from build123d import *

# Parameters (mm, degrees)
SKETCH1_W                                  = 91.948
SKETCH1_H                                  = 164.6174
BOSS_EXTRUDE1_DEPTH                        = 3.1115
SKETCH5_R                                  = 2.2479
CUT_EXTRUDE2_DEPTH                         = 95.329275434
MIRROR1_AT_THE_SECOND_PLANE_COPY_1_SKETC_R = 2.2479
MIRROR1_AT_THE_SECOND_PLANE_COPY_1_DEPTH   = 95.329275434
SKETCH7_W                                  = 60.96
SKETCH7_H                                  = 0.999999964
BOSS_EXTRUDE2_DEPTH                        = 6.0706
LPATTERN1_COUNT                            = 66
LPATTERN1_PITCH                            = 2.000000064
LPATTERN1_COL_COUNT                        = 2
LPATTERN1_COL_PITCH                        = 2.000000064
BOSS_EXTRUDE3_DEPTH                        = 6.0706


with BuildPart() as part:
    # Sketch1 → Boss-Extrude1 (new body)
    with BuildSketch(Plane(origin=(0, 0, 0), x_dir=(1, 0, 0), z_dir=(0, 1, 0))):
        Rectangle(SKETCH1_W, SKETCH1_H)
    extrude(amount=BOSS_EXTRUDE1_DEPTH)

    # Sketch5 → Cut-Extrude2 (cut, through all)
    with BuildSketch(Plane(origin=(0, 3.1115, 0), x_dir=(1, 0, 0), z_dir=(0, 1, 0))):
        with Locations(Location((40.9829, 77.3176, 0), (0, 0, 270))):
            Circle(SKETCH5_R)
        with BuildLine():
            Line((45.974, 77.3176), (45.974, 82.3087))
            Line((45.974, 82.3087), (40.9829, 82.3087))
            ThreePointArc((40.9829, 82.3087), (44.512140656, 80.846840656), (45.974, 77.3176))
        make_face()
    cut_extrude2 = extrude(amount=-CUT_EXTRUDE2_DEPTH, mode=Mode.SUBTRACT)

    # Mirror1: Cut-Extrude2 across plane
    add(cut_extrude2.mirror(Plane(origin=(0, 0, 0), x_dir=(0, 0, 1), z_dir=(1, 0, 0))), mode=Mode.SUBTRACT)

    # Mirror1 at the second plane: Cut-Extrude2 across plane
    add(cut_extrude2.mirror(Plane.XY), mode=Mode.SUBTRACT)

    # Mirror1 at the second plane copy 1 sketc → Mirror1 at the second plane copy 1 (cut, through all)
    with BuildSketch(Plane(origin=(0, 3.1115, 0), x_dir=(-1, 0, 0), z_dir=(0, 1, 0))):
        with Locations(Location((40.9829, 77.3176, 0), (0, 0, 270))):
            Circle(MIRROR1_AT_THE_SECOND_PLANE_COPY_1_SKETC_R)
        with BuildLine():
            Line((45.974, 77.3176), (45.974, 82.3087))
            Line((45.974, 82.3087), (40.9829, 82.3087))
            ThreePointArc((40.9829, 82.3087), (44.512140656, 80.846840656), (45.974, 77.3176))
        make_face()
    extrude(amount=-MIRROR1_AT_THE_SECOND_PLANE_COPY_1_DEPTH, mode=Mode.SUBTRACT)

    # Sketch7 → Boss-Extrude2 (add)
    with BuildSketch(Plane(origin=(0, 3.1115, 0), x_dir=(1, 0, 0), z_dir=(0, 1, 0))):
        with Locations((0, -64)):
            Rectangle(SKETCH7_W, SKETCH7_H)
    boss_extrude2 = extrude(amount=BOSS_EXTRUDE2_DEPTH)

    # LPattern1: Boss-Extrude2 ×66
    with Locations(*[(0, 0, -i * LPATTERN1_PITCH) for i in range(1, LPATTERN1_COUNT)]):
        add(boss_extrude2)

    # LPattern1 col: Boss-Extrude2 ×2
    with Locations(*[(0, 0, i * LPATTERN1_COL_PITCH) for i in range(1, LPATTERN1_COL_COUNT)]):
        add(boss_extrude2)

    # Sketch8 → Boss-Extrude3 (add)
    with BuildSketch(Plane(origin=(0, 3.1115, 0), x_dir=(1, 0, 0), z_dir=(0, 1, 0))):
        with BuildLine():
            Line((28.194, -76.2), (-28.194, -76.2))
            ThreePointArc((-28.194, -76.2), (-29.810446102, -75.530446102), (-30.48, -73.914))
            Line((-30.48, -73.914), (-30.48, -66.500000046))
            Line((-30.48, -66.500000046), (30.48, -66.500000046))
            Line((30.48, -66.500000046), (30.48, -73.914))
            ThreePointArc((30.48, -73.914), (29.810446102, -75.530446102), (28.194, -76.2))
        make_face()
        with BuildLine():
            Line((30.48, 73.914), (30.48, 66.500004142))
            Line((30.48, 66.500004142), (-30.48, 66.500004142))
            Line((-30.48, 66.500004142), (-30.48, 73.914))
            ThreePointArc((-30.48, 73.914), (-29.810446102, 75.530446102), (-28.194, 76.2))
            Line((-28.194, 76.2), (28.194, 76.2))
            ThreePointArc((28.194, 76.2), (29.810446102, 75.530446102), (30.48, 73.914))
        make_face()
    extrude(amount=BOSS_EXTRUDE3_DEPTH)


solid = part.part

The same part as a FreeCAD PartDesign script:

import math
import FreeCAD as App
import Part
import Sketcher
from FreeCAD import Vector
Q = App.Units.Quantity

doc = App.newDocument("Part")
body = doc.addObject("PartDesign::Body", "Body")

sketch1 = body.newObject("Sketcher::SketchObject", "Sketch")
sketch1.AttachmentSupport = (doc.getObject("XZ_Plane"), [""])
sketch1.MapMode = "FlatFace"
sketch1.addGeometry(Part.LineSegment(Vector(-46, -82, 0), Vector(-46, 82, 0)), False)
sketch1.addGeometry(Part.LineSegment(Vector(-46, 82, 0), Vector(46, 82, 0)), False)
sketch1.addGeometry(Part.LineSegment(Vector(46, 82, 0), Vector(46, -82, 0)), False)
sketch1.addGeometry(Part.LineSegment(Vector(46, -82, 0), Vector(-46, -82, 0)), False)
sketch1.addConstraint(Sketcher.Constraint("Coincident", 0, 2, 1, 1))
sketch1.addConstraint(Sketcher.Constraint("Coincident", 1, 2, 2, 1))
sketch1.addConstraint(Sketcher.Constraint("Coincident", 2, 2, 3, 1))
sketch1.addConstraint(Sketcher.Constraint("Coincident", 3, 2, 0, 1))
sketch1.addConstraint(Sketcher.Constraint("Vertical", 0))
sketch1.addConstraint(Sketcher.Constraint("Horizontal", 1))
sketch1.addConstraint(Sketcher.Constraint("Vertical", 2))
sketch1.addConstraint(Sketcher.Constraint("Horizontal", 3))
sketch1.addConstraint(Sketcher.Constraint("Symmetric", 0, 2, 2, 2, -1, 1))
sketch1.addConstraint(Sketcher.Constraint("DistanceX", 1, 1, 1, 2, Q("3.62 in")))
sketch1.addConstraint(Sketcher.Constraint("DistanceY", 0, 1, 0, 2, Q("6.481 in")))
pad1 = body.newObject("PartDesign::Pad", "Pad")
pad1.Profile = sketch1
pad1.Length = Q("0.1225 in")
pad1.Reversed = True

sketch2 = body.newObject("Sketcher::SketchObject", "Sketch001")
sketch2.AttachmentSupport = (doc.getObject("XZ_Plane"), [""])
sketch2.MapMode = "FlatFace"
sketch2.AttachmentOffset = App.Placement(Vector(0, 0, -0.1225 * 25.4), App.Rotation())
sketch2.addGeometry(Part.Circle(Vector(41, -77.3, 0), Vector(0, 0, 1), 2.2), False)
sketch2.addGeometry(Part.LineSegment(Vector(46, -77.3, 0), Vector(46, -82.3, 0)), False)
sketch2.addGeometry(Part.LineSegment(Vector(46, -82.3, 0), Vector(41, -82.3, 0)), False)
sketch2.addGeometry(Part.ArcOfCircle(Part.Circle(Vector(41, -77.3, 0), Vector(0, 0, 1), 5), math.radians(-90), math.radians(0)), False)
sketch2.addConstraint(Sketcher.Constraint("Coincident", 1, 2, 2, 1))
sketch2.addConstraint(Sketcher.Constraint("Tangent", 2, 2, 3, 1))
sketch2.addConstraint(Sketcher.Constraint("Tangent", 3, 2, 1, 1))
sketch2.addConstraint(Sketcher.Constraint("Vertical", 1))
sketch2.addConstraint(Sketcher.Constraint("Horizontal", 2))
sketch2.addConstraint(Sketcher.Constraint("Coincident", 3, 3, 0, 3))
sketch2.addConstraint(Sketcher.Constraint("Diameter", 0, Q("0.177 in")))
sketch2.addConstraint(Sketcher.Constraint("Radius", 3, Q("0.1965 in")))
sketch2.addConstraint(Sketcher.Constraint("DistanceX", -1, 1, 1, 2, Q("1.81 in")))
sketch2.addConstraint(Sketcher.Constraint("DistanceY", 0, 3, -1, 1, Q("3.044 in")))
pocket1 = body.newObject("PartDesign::Pocket", "Pocket")
pocket1.Profile = sketch2
pocket1.Type = "ThroughAll"
pocket1.Reversed = True
doc.recompute()

mirrored = body.newObject("PartDesign::Mirrored", "Mirrored")
mirrored.Originals = [pocket1]
mirrored.MirrorPlane = (doc.getObject("YZ_Plane"), [""])
body.Tip = mirrored
doc.recompute()

mirrored2 = body.newObject("PartDesign::Mirrored", "Mirrored001")
mirrored2.Originals = [pocket1]
mirrored2.MirrorPlane = (doc.getObject("XY_Plane"), [""])
body.Tip = mirrored2

sketch3 = body.newObject("Sketcher::SketchObject", "Sketch002")
sketch3.AttachmentSupport = (doc.getObject("XZ_Plane"), [""])
sketch3.MapMode = "FlatFace"
sketch3.AttachmentOffset = App.Placement(Vector(0, 0, -0.1225 * 25.4), App.Rotation())
sketch3.addGeometry(Part.Circle(Vector(-41, 77.3, 0), Vector(0, 0, 1), 2.2), False)
sketch3.addGeometry(Part.LineSegment(Vector(-46, 77.3, 0), Vector(-46, 82.3, 0)), False)
sketch3.addGeometry(Part.LineSegment(Vector(-46, 82.3, 0), Vector(-41, 82.3, 0)), False)
sketch3.addGeometry(Part.ArcOfCircle(Part.Circle(Vector(-41, 77.3, 0), Vector(0, 0, 1), 5), math.radians(90), math.radians(180)), False)
sketch3.addConstraint(Sketcher.Constraint("Coincident", 1, 2, 2, 1))
sketch3.addConstraint(Sketcher.Constraint("Tangent", 2, 2, 3, 1))
sketch3.addConstraint(Sketcher.Constraint("Tangent", 3, 2, 1, 1))
sketch3.addConstraint(Sketcher.Constraint("Vertical", 1))
sketch3.addConstraint(Sketcher.Constraint("Horizontal", 2))
sketch3.addConstraint(Sketcher.Constraint("Coincident", 3, 3, 0, 3))
sketch3.addConstraint(Sketcher.Constraint("Diameter", 0, Q("0.177 in")))
sketch3.addConstraint(Sketcher.Constraint("Radius", 3, Q("0.1965 in")))
sketch3.addConstraint(Sketcher.Constraint("DistanceX", 1, 2, -1, 1, Q("1.81 in")))
sketch3.addConstraint(Sketcher.Constraint("DistanceY", -1, 1, 0, 3, Q("3.044 in")))
pocket2 = body.newObject("PartDesign::Pocket", "Pocket001")
pocket2.Profile = sketch3
pocket2.Type = "ThroughAll"
pocket2.Reversed = True

sketch4 = body.newObject("Sketcher::SketchObject", "Sketch003")
sketch4.AttachmentSupport = (doc.getObject("XZ_Plane"), [""])
sketch4.MapMode = "FlatFace"
sketch4.AttachmentOffset = App.Placement(Vector(0, 0, -0.1225 * 25.4), App.Rotation())
sketch4.addGeometry(Part.LineSegment(Vector(-30.5, 63.5, 0), Vector(-30.5, 64.5, 0)), False)
sketch4.addGeometry(Part.LineSegment(Vector(-30.5, 64.5, 0), Vector(30.5, 64.5, 0)), False)
sketch4.addGeometry(Part.LineSegment(Vector(30.5, 64.5, 0), Vector(30.5, 63.5, 0)), False)
sketch4.addGeometry(Part.LineSegment(Vector(30.5, 63.5, 0), Vector(-30.5, 63.5, 0)), False)
sketch4.addConstraint(Sketcher.Constraint("Coincident", 0, 2, 1, 1))
sketch4.addConstraint(Sketcher.Constraint("Coincident", 1, 2, 2, 1))
sketch4.addConstraint(Sketcher.Constraint("Coincident", 2, 2, 3, 1))
sketch4.addConstraint(Sketcher.Constraint("Coincident", 3, 2, 0, 1))
sketch4.addConstraint(Sketcher.Constraint("Vertical", 0))
sketch4.addConstraint(Sketcher.Constraint("Horizontal", 1))
sketch4.addConstraint(Sketcher.Constraint("Vertical", 2))
sketch4.addConstraint(Sketcher.Constraint("Horizontal", 3))
sketch4.addConstraint(Sketcher.Constraint("DistanceX", 1, 1, 1, 2, Q("2.4 in")))
sketch4.addConstraint(Sketcher.Constraint("DistanceX", 0, 2, -1, 1, Q("1.2 in")))
sketch4.addConstraint(Sketcher.Constraint("DistanceY", -1, 1, 2, 2, Q("2.5 in")))
sketch4.addConstraint(Sketcher.Constraint("DistanceY", 0, 1, 0, 2, 1.0))
pad2 = body.newObject("PartDesign::Pad", "Pad001")
pad2.Profile = sketch4
pad2.Length = Q("0.239 in")
pad2.Reversed = True
doc.recompute()

linearpattern = body.newObject("PartDesign::LinearPattern", "LinearPattern")
linearpattern.Originals = [pad2]
linearpattern.Direction = (doc.getObject("Z_Axis"), [""])
linearpattern.Mode = "offset"
linearpattern.Offset = 2
linearpattern.Occurrences = 66
linearpattern.Reversed = True
body.Tip = linearpattern
doc.recompute()

linearpattern2 = body.newObject("PartDesign::LinearPattern", "LinearPattern001")
linearpattern2.Originals = [pad2]
linearpattern2.Direction = (doc.getObject("Z_Axis"), [""])
linearpattern2.Mode = "offset"
linearpattern2.Offset = 2
linearpattern2.Occurrences = 2
body.Tip = linearpattern2

sketch5 = body.newObject("Sketcher::SketchObject", "Sketch004")
sketch5.AttachmentSupport = (doc.getObject("XZ_Plane"), [""])
sketch5.MapMode = "FlatFace"
sketch5.AttachmentOffset = App.Placement(Vector(0, 0, -0.1225 * 25.4), App.Rotation())
sketch5.addGeometry(Part.LineSegment(Vector(-28.2, 76.2, 0), Vector(28.2, 76.2, 0)), False)
sketch5.addGeometry(Part.ArcOfCircle(Part.Circle(Vector(28.2, 73.9, 0), Vector(0, 0, 1), 2.3), math.radians(0), math.radians(90)), False)
sketch5.addGeometry(Part.LineSegment(Vector(30.5, 73.9, 0), Vector(30.5, 66.5, 0)), False)
sketch5.addGeometry(Part.LineSegment(Vector(30.5, 66.5, 0), Vector(-30.5, 66.5, 0)), False)
sketch5.addGeometry(Part.LineSegment(Vector(-30.5, 66.5, 0), Vector(-30.5, 73.9, 0)), False)
sketch5.addGeometry(Part.ArcOfCircle(Part.Circle(Vector(-28.2, 73.9, 0), Vector(0, 0, 1), 2.3), math.radians(90), math.radians(180)), False)
sketch5.addGeometry(Part.LineSegment(Vector(30.5, -66.5, 0), Vector(30.5, -73.9, 0)), False)
sketch5.addGeometry(Part.ArcOfCircle(Part.Circle(Vector(28.2, -73.9, 0), Vector(0, 0, 1), 2.3), math.radians(-90), math.radians(0)), False)
sketch5.addGeometry(Part.LineSegment(Vector(28.2, -76.2, 0), Vector(-28.2, -76.2, 0)), False)
sketch5.addGeometry(Part.ArcOfCircle(Part.Circle(Vector(-28.2, -73.9, 0), Vector(0, 0, 1), 2.3), math.radians(180), math.radians(270)), False)
sketch5.addGeometry(Part.LineSegment(Vector(-30.5, -73.9, 0), Vector(-30.5, -66.5, 0)), False)
sketch5.addGeometry(Part.LineSegment(Vector(-30.5, -66.5, 0), Vector(30.5, -66.5, 0)), False)
sketch5.addConstraint(Sketcher.Constraint("Tangent", 0, 2, 1, 2))
sketch5.addConstraint(Sketcher.Constraint("Tangent", 1, 1, 2, 1))
sketch5.addConstraint(Sketcher.Constraint("Coincident", 2, 2, 3, 1))
sketch5.addConstraint(Sketcher.Constraint("Coincident", 3, 2, 4, 1))
sketch5.addConstraint(Sketcher.Constraint("Tangent", 4, 2, 5, 2))
sketch5.addConstraint(Sketcher.Constraint("Tangent", 5, 1, 0, 1))
sketch5.addConstraint(Sketcher.Constraint("Tangent", 6, 2, 7, 2))
sketch5.addConstraint(Sketcher.Constraint("Tangent", 7, 1, 8, 1))
sketch5.addConstraint(Sketcher.Constraint("Tangent", 8, 2, 9, 2))
sketch5.addConstraint(Sketcher.Constraint("Tangent", 9, 1, 10, 1))
sketch5.addConstraint(Sketcher.Constraint("Coincident", 10, 2, 11, 1))
sketch5.addConstraint(Sketcher.Constraint("Coincident", 11, 2, 6, 1))
sketch5.addConstraint(Sketcher.Constraint("Horizontal", 0))
sketch5.addConstraint(Sketcher.Constraint("Vertical", 2))
sketch5.addConstraint(Sketcher.Constraint("Horizontal", 3))
sketch5.addConstraint(Sketcher.Constraint("Vertical", 4))
sketch5.addConstraint(Sketcher.Constraint("Vertical", 6))
sketch5.addConstraint(Sketcher.Constraint("Horizontal", 8))
sketch5.addConstraint(Sketcher.Constraint("Vertical", 10))
sketch5.addConstraint(Sketcher.Constraint("Horizontal", 11))
sketch5.addConstraint(Sketcher.Constraint("Equal", 1, 5))
sketch5.addConstraint(Sketcher.Constraint("Equal", 5, 7))
sketch5.addConstraint(Sketcher.Constraint("Equal", 7, 9))
sketch5.addConstraint(Sketcher.Constraint("Symmetric", 5, 3, 7, 3, -1, 1))
sketch5.addConstraint(Sketcher.Constraint("Symmetric", 2, 2, 10, 2, -1, 1))
sketch5.addConstraint(Sketcher.Constraint("Vertical", 1, 3, 7, 3))
sketch5.addConstraint(Sketcher.Constraint("Radius", 1, Q("0.09 in")))
sketch5.addConstraint(Sketcher.Constraint("DistanceX", 3, 2, 3, 1, Q("2.4 in")))
sketch5.addConstraint(Sketcher.Constraint("DistanceY", -1, 1, 0, 2, Q("3 in")))
sketch5.addConstraint(Sketcher.Constraint("DistanceY", 2, 2, 2, 1, 7.414))
pad3 = body.newObject("PartDesign::Pad", "Pad002")
pad3.Profile = sketch5
pad3.Length = Q("0.239 in")
pad3.Reversed = True

doc.recompute()
